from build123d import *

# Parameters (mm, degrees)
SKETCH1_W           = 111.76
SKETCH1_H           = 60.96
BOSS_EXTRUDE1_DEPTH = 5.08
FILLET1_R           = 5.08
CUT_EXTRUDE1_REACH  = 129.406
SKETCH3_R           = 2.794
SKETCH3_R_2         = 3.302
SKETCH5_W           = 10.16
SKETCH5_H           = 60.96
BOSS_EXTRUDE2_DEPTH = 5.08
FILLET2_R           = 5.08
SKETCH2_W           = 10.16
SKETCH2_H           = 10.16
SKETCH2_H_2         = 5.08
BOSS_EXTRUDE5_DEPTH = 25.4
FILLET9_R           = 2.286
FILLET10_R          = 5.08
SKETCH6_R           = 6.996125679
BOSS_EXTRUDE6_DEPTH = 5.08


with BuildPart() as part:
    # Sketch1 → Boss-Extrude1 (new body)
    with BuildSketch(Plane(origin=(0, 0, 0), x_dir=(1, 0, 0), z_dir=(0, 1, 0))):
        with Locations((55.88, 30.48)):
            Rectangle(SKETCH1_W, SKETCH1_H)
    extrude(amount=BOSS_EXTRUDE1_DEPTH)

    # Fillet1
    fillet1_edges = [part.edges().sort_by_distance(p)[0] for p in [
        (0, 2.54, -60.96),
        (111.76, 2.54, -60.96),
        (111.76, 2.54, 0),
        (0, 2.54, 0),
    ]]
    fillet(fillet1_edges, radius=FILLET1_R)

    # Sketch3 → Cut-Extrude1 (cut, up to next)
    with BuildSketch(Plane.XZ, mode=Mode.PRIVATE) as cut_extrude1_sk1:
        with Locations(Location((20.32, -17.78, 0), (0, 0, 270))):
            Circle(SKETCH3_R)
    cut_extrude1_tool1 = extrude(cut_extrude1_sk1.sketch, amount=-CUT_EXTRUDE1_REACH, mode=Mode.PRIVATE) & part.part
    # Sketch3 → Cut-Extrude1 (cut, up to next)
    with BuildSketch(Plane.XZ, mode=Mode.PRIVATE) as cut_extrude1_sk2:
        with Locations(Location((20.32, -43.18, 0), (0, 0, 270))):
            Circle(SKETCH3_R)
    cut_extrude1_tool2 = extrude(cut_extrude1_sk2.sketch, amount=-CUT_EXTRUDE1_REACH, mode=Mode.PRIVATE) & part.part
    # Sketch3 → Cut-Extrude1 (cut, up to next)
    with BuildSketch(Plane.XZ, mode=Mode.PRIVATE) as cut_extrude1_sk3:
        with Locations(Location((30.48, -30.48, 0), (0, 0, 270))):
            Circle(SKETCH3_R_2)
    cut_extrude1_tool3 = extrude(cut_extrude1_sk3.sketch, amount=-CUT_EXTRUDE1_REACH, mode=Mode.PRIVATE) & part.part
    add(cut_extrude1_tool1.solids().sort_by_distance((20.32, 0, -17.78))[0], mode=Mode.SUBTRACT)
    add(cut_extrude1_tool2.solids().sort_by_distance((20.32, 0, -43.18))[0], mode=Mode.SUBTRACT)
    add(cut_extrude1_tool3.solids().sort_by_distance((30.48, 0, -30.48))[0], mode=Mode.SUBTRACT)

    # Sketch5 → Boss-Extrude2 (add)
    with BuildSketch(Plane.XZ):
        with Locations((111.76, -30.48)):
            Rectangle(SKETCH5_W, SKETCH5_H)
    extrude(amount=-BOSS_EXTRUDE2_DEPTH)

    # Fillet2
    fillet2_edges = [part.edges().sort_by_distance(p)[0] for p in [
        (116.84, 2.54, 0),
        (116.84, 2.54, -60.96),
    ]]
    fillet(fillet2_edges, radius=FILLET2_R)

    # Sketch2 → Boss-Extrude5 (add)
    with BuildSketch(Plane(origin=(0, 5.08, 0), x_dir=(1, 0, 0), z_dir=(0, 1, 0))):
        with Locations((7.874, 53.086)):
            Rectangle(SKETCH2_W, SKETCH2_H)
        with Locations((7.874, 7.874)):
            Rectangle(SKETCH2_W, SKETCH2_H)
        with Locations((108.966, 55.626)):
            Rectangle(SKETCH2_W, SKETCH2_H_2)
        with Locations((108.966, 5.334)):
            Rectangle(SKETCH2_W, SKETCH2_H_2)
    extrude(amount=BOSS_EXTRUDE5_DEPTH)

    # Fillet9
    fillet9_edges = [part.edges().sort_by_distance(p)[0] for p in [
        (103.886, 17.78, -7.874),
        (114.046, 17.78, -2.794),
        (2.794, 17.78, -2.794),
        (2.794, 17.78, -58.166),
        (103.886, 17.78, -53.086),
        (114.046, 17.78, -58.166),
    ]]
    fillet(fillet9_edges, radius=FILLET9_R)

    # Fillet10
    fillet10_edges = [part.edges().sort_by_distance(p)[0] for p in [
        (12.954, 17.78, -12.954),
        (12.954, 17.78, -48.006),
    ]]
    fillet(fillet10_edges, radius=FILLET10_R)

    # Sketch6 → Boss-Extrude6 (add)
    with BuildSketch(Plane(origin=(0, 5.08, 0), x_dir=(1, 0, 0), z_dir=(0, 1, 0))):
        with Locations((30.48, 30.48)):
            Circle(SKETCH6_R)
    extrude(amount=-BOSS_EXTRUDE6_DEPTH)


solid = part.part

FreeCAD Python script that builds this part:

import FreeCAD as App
import Part
import Sketcher
from FreeCAD import Vector
Q = App.Units.Quantity


def edges_at(feature, points):
    """Names of the edges that pass closest to the given points."""
    edges = feature.Shape.Edges
    near = lambda p: min(range(len(edges)), key=lambda i: edges[i].distToShape(Part.Vertex(*p))[0])
    return sorted({f"Edge{near(p) + 1}" for p in points})


def add_polygon(sketch, points):
    """Adds a closed chain of lines whose ends are joined by coincident constraints."""
    first, n = sketch.GeometryCount, len(points)
    for a, b in zip(points, points[1:] + points[:1]):
        sketch.addGeometry(Part.LineSegment(App.Vector(*a, 0), App.Vector(*b, 0)), False)
    for i in range(n):
        sketch.addConstraint(Sketcher.Constraint("Coincident", first + i, 2, first + (i + 1) % n, 1))

doc = App.newDocument("Part")
body = doc.addObject("PartDesign::Body", "Body")

# Sketch on XZ plane
sketch1 = doc.addObject("Sketcher::SketchObject", "Sketch")
body.addObject(sketch1)
sketch1.AttachmentSupport = (doc.XZ_Plane, [""])
sketch1.MapMode = "FlatFace"
add_polygon(sketch1, [(0, -61), (0, 0), (112, 0), (112, -61)])  # lines 0-3
sketch1.addConstraint([
    Sketcher.Constraint("Vertical", 0),
    Sketcher.Constraint("Horizontal", 1),
    Sketcher.Constraint("Vertical", 2),
    Sketcher.Constraint("Horizontal", 3),
    Sketcher.Constraint("Coincident", 0, 2, -1, 1),
    Sketcher.Constraint("DistanceX", 1, 1, 1, 2, Q("4.4 in")),
    Sketcher.Constraint("DistanceY", 0, 1, 0, 2, Q("2.4 in")),
])
pad1 = doc.addObject("PartDesign::Pad", "Pad")
body.addObject(pad1)
pad1.Profile = sketch1
pad1.Length = Q("0.2 in")
pad1.Reversed = True
doc.recompute()

fillet = doc.addObject("PartDesign::Fillet", "Fillet")
body.addObject(fillet)
fillet.Base = (pad1, edges_at(pad1, [
    (0, 2.54, -60.96),
    (111.76, 2.54, -60.96),
    (111.76, 2.54, 0),
    (0, 2.54, 0),
]))
fillet.Radius = Q("0.2 in")

# Sketch on XZ plane
sketch2 = doc.addObject("Sketcher::SketchObject", "Sketch001")
body.addObject(sketch2)
sketch2.AttachmentSupport = (doc.XZ_Plane, [""])
sketch2.MapMode = "FlatFace"
sketch2.addGeometry(Part.Circle(Vector(20.3, -17.8, 0), Vector(0, 0, 1), 2.8), False)
sketch2.addConstraint([
    Sketcher.Constraint("Diameter", 0, Q("0.22 in")),
    Sketcher.Constraint("DistanceX", -1, 1, 0, 3, Q("0.8 in")),
    Sketcher.Constraint("DistanceY", 0, 3, -1, 1, Q("0.7 in")),
])
pocket1 = doc.addObject("PartDesign::Pocket", "Pocket")
body.addObject(pocket1)
pocket1.Profile = sketch2
pocket1.Type = "UpToFirst"

# Sketch on XZ plane
sketch3 = doc.addObject("Sketcher::SketchObject", "Sketch002")
body.addObject(sketch3)
sketch3.AttachmentSupport = (doc.XZ_Plane, [""])
sketch3.MapMode = "FlatFace"
sketch3.addGeometry(Part.Circle(Vector(20.3, -43.2, 0), Vector(0, 0, 1), 2.8), False)
sketch3.addConstraint([
    Sketcher.Constraint("Diameter", 0, Q("0.22 in")),
    Sketcher.Constraint("DistanceX", -1, 1, 0, 3, Q("0.8 in")),
    Sketcher.Constraint("DistanceY", 0, 3, -1, 1, Q("1.7 in")),
])
pocket2 = doc.addObject("PartDesign::Pocket", "Pocket001")
body.addObject(pocket2)
pocket2.Profile = sketch3
pocket2.Type = "UpToFirst"

# Sketch on XZ plane
sketch4 = doc.addObject("Sketcher::SketchObject", "Sketch003")
body.addObject(sketch4)
sketch4.AttachmentSupport = (doc.XZ_Plane, [""])
sketch4.MapMode = "FlatFace"
sketch4.addGeometry(Part.Circle(Vector(30.5, -30.5, 0), Vector(0, 0, 1), 3.3), False)
sketch4.addConstraint([
    Sketcher.Constraint("Diameter", 0, Q("0.26 in")),
    Sketcher.Constraint("DistanceX", -1, 1, 0, 3, Q("1.2 in")),
    Sketcher.Constraint("DistanceY", 0, 3, -1, 1, Q("1.2 in")),
])
pocket3 = doc.addObject("PartDesign::Pocket", "Pocket002")
body.addObject(pocket3)
pocket3.Profile = sketch4
pocket3.Type = "UpToFirst"

# Sketch on XZ plane
sketch5 = doc.addObject("Sketcher::SketchObject", "Sketch004")
body.addObject(sketch5)
sketch5.AttachmentSupport = (doc.XZ_Plane, [""])
sketch5.MapMode = "FlatFace"
add_polygon(sketch5, [(107, 0), (107, -61), (117, -61), (117, 0)])  # lines 0-3
sketch5.addConstraint([
    Sketcher.Constraint("Vertical", 0),
    Sketcher.Constraint("Horizontal", 1),
    Sketcher.Constraint("Vertical", 2),
    Sketcher.Constraint("Horizontal", 3),
    Sketcher.Constraint("PointOnObject", 2, 2, -1),
    Sketcher.Constraint("DistanceX", 1, 1, 1, 2, Q("0.4 in")),
    Sketcher.Constraint("DistanceY", 0, 2, 0, 1, Q("2.4 in")),
    Sketcher.Constraint("DistanceX", -1, 1, 0, 2, Q("4.2 in")),
])
pad2 = doc.addObject("PartDesign::Pad", "Pad001")
body.addObject(pad2)
pad2.Profile = sketch5
pad2.Length = Q("0.2 in")
pad2.Reversed = True
doc.recompute()

fillet2 = doc.addObject("PartDesign::Fillet", "Fillet001")
body.addObject(fillet2)
fillet2.Base = (pad2, edges_at(pad2, [(116.84, 2.54, 0), (116.84, 2.54, -60.96)]))
fillet2.Radius = Q("0.2 in")

# Sketch on XZ plane
sketch6 = doc.addObject("Sketcher::SketchObject", "Sketch005")
body.addObject(sketch6)
sketch6.AttachmentSupport = (doc.XZ_Plane, [""])
sketch6.MapMode = "FlatFace"
sketch6.AttachmentOffset = App.Placement(Vector(0, 0, -0.2 * 25.4), App.Rotation())
add_polygon(sketch6, [(3, -58), (3, -48), (13, -48), (13, -58)])  # lines 0-3
add_polygon(sketch6, [(3, -13), (3, -3), (13, -3), (13, -13)])  # lines 4-7
add_polygon(sketch6, [(104, -58), (104, -53), (114, -53), (114, -58)])  # lines 8-11
add_polygon(sketch6, [(104, -8), (104, -3), (114, -3), (114, -8)])  # lines 12-15
sketch6.addConstraint([
    Sketcher.Constraint("Vertical", 0),
    Sketcher.Constraint("Horizontal", 1),
    Sketcher.Constraint("Vertical", 2),
    Sketcher.Constraint("Horizontal", 3),
    Sketcher.Constraint("Vertical", 4),
    Sketcher.Constraint("Horizontal", 5),
    Sketcher.Constraint("Vertical", 6),
    Sketcher.Constraint("Horizontal", 7),
    Sketcher.Constraint("Vertical", 8),
    Sketcher.Constraint("Horizontal", 9),
    Sketcher.Constraint("Vertical", 10),
    Sketcher.Constraint("Horizontal", 11),
    Sketcher.Constraint("Vertical", 12),
    Sketcher.Constraint("Horizontal", 13),
    Sketcher.Constraint("Vertical", 14),
    Sketcher.Constraint("Horizontal", 15),
    Sketcher.Constraint("Horizontal", 3, 2, 10, 2),
    Sketcher.Constraint("Horizontal", 5, 2, 12, 2),
    Sketcher.Constraint("Vertical", 3, 2, 4, 2),
    Sketcher.Constraint("Vertical", 2, 2, 5, 2),
    Sketcher.Constraint("Vertical", 11, 2, 12, 2),
    Sketcher.Constraint("Vertical", 10, 2, 13, 2),
    Sketcher.Constraint("Equal", 7, 9),
    Sketcher.Constraint("Equal", 15, 0),
    Sketcher.Constraint("Equal", 2, 4),
    Sketcher.Constraint("Equal", 10, 12),
    Sketcher.Constraint("DistanceX", 1, 1, 1, 2, Q("0.4 in")),
    Sketcher.Constraint("DistanceY", 8, 1, 8, 2, Q("0.2 in")),
    Sketcher.Constraint("DistanceX", -1, 1, 0, 2, Q("0.11 in")),
    Sketcher.Constraint("DistanceY", 0, 2, -1, 1, Q("1.89 in")),
    Sketcher.Constraint("DistanceY", 4, 2, -1, 1, Q("0.11 in")),
    Sketcher.Constraint("DistanceX", -1, 1, 8, 2, Q("4.09 in")),
])
pad3 = doc.addObject("PartDesign::Pad", "Pad002")
body.addObject(pad3)
pad3.Profile = sketch6
pad3.Length = Q("1 in")
pad3.Reversed = True
doc.recompute()

fillet3 = doc.addObject("PartDesign::Fillet", "Fillet002")
body.addObject(fillet3)
fillet3.Base = (pad3, edges_at(pad3, [
    (103.886, 17.78, -7.874),
    (114.046, 17.78, -2.794),
    (2.794, 17.78, -2.794),
    (2.794, 17.78, -58.166),
    (103.886, 17.78, -53.086),
    (114.046, 17.78, -58.166),
]))
fillet3.Radius = Q("0.09 in")
doc.recompute()

fillet4 = doc.addObject("PartDesign::Fillet", "Fillet003")
body.addObject(fillet4)
fillet4.Base = (fillet3, edges_at(fillet3, [(12.954, 17.78, -12.954), (12.954, 17.78, -48.006)]))
fillet4.Radius = Q("0.2 in")

# Sketch on XZ plane
sketch7 = doc.addObject("Sketcher::SketchObject", "Sketch006")
body.addObject(sketch7)
sketch7.AttachmentSupport = (doc.XZ_Plane, [""])
sketch7.MapMode = "FlatFace"
sketch7.AttachmentOffset = App.Placement(Vector(0, 0, -0.2 * 25.4), App.Rotation())
sketch7.addGeometry(Part.Circle(Vector(30, -30, 0), Vector(0, 0, 1), 7), False)
sketch7.addConstraint([
    Sketcher.Constraint("DistanceX", -1, 1, 0, 3, Q("1.2 in")),
    Sketcher.Constraint("DistanceY", 0, 3, -1, 1, Q("1.2 in")),
    Sketcher.Constraint("Diameter", 0, 13.992251),
])
pad4 = doc.addObject("PartDesign::Pad", "Pad003")
body.addObject(pad4)
pad4.Profile = sketch7
pad4.Length = Q("0.2 in")

doc.recompute()
